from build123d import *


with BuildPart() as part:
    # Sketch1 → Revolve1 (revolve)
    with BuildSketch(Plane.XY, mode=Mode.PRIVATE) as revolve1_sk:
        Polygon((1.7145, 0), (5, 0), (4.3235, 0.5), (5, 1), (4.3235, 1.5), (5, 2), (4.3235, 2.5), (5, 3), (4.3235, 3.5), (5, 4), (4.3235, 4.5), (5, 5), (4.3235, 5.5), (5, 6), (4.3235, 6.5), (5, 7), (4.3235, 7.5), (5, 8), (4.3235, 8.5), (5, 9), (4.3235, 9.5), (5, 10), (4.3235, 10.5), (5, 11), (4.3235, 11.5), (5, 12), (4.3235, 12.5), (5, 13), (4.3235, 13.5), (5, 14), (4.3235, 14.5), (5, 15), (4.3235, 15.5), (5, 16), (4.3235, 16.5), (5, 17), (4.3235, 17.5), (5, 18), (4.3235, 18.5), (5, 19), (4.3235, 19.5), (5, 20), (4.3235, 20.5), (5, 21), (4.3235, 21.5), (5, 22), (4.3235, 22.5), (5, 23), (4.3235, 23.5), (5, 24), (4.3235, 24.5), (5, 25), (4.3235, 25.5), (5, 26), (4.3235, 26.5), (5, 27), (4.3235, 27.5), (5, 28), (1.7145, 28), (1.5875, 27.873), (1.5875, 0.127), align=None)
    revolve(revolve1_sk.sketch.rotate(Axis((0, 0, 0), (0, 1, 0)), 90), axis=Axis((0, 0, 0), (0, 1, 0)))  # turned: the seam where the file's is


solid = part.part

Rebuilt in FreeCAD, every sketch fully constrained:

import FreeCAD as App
import Part
import Sketcher
from FreeCAD import Vector
Q = App.Units.Quantity


def add_polygon(sketch, points):
    """Adds a closed chain of lines whose ends are joined by coincident constraints."""
    first, n = sketch.GeometryCount, len(points)
    for a, b in zip(points, points[1:] + points[:1]):
        sketch.addGeometry(Part.LineSegment(App.Vector(*a, 0), App.Vector(*b, 0)), False)
    for i in range(n):
        sketch.addConstraint(Sketcher.Constraint("Coincident", first + i, 2, first + (i + 1) % n, 1))

doc = App.newDocument("Part")
body = doc.addObject("PartDesign::Body", "Body")

sketch1 = body.newObject("Sketcher::SketchObject", "Sketch")
sketch1.AttachmentSupport = (doc.getObject("XY_Plane"), [""])
sketch1.MapMode = "FlatFace"
add_polygon(sketch1, [(1.71, 0), (5, 0), (4.32, 0.5), (5, 1), (4.32, 1.5), (5, 2), (4.32, 2.5), (5, 3), (4.32, 3.5), (5, 4), (4.32, 4.5), (5, 5), (4.32, 5.5), (5, 6), (4.32, 6.5), (5, 7), (4.32, 7.5), (5, 8), (4.32, 8.5), (5, 9), (4.32, 9.5), (5, 10), (4.32, 10.5), (5, 11), (4.32, 11.5), (5, 12), (4.32, 12.5), (5, 13), (4.32, 13.5), (5, 14), (4.32, 14.5), (5, 15), (4.32, 15.5), (5, 16), (4.32, 16.5), (5, 17), (4.32, 17.5), (5, 18), (4.32, 18.5), (5, 19), (4.32, 19.5), (5, 20), (4.32, 20.5), (5, 21), (4.32, 21.5), (5, 22), (4.32, 22.5), (5, 23), (4.32, 23.5), (5, 24), (4.32, 24.5), (5, 25), (4.32, 25.5), (5, 26), (4.32, 26.5), (5, 27), (4.32, 27.5), (5, 28), (1.71, 28), (1.59, 27.87), (1.59, 0.13)])
sketch1.addConstraint([
    Sketcher.Constraint("Horizontal", 0),
    Sketcher.Constraint("Horizontal", 57),
    Sketcher.Constraint("Vertical", 59),
    Sketcher.Constraint("PointOnObject", 0, 2, -1),
    Sketcher.Constraint("Parallel", 1, 3),
    Sketcher.Constraint("Parallel", 2, 4),
    Sketcher.Constraint("Parallel", 3, 5),
    Sketcher.Constraint("Parallel", 4, 6),
    Sketcher.Constraint("Parallel", 5, 7),
    Sketcher.Constraint("Parallel", 6, 8),
    Sketcher.Constraint("Parallel", 7, 9),
    Sketcher.Constraint("Parallel", 8, 10),
    Sketcher.Constraint("Parallel", 9, 11),
    Sketcher.Constraint("Parallel", 10, 12),
    Sketcher.Constraint("Parallel", 11, 13),
    Sketcher.Constraint("Parallel", 12, 14),
    Sketcher.Constraint("Parallel", 13, 15),
    Sketcher.Constraint("Parallel", 14, 16),
    Sketcher.Constraint("Parallel", 15, 17),
    Sketcher.Constraint("Parallel", 16, 18),
    Sketcher.Constraint("Parallel", 17, 19),
    Sketcher.Constraint("Parallel", 18, 20),
    Sketcher.Constraint("Parallel", 19, 21),
    Sketcher.Constraint("Parallel", 20, 22),
    Sketcher.Constraint("Parallel", 21, 23),
    Sketcher.Constraint("Parallel", 22, 24),
    Sketcher.Constraint("Parallel", 23, 25),
    Sketcher.Constraint("Parallel", 24, 26),
    Sketcher.Constraint("Parallel", 25, 27),
    Sketcher.Constraint("Parallel", 26, 28),
    Sketcher.Constraint("Parallel", 27, 29),
    Sketcher.Constraint("Parallel", 28, 30),
    Sketcher.Constraint("Parallel", 29, 31),
    Sketcher.Constraint("Parallel", 30, 32),
    Sketcher.Constraint("Parallel", 31, 33),
    Sketcher.Constraint("Parallel", 32, 34),
    Sketcher.Constraint("Parallel", 33, 35),
    Sketcher.Constraint("Parallel", 34, 36),
    Sketcher.Constraint("Parallel", 35, 37),
    Sketcher.Constraint("Parallel", 36, 38),
    Sketcher.Constraint("Parallel", 37, 39),
    Sketcher.Constraint("Parallel", 38, 40),
    Sketcher.Constraint("Parallel", 39, 41),
    Sketcher.Constraint("Parallel", 40, 42),
    Sketcher.Constraint("Parallel", 41, 43),
    Sketcher.Constraint("Parallel", 42, 44),
    Sketcher.Constraint("Parallel", 43, 45),
    Sketcher.Constraint("Parallel", 44, 46),
    Sketcher.Constraint("Parallel", 45, 47),
    Sketcher.Constraint("Parallel", 46, 48),
    Sketcher.Constraint("Parallel", 47, 49),
    Sketcher.Constraint("Parallel", 48, 50),
    Sketcher.Constraint("Parallel", 49, 51),
    Sketcher.Constraint("Parallel", 50, 52),
    Sketcher.Constraint("Parallel", 51, 53),
    Sketcher.Constraint("Parallel", 52, 54),
    Sketcher.Constraint("Parallel", 53, 55),
    Sketcher.Constraint("Parallel", 54, 56),
    Sketcher.Constraint("Perpendicular", 58, 60),
    Sketcher.Constraint("Vertical", 0, 2, 2, 2),
    Sketcher.Constraint("Vertical", 1, 2, 3, 2),
    Sketcher.Constraint("Vertical", 2, 2, 4, 2),
    Sketcher.Constraint("Vertical", 3, 2, 5, 2),
    Sketcher.Constraint("Vertical", 4, 2, 6, 2),
    Sketcher.Constraint("Vertical", 5, 2, 7, 2),
    Sketcher.Constraint("Vertical", 6, 2, 8, 2),
    Sketcher.Constraint("Vertical", 7, 2, 9, 2),
    Sketcher.Constraint("Vertical", 8, 2, 10, 2),
    Sketcher.Constraint("Vertical", 9, 2, 11, 2),
    Sketcher.Constraint("Vertical", 10, 2, 12, 2),
    Sketcher.Constraint("Vertical", 11, 2, 13, 2),
    Sketcher.Constraint("Vertical", 12, 2, 14, 2),
    Sketcher.Constraint("Vertical", 13, 2, 15, 2),
    Sketcher.Constraint("Vertical", 14, 2, 16, 2),
    Sketcher.Constraint("Vertical", 15, 2, 17, 2),
    Sketcher.Constraint("Vertical", 16, 2, 18, 2),
    Sketcher.Constraint("Vertical", 17, 2, 19, 2),
    Sketcher.Constraint("Vertical", 18, 2, 20, 2),
    Sketcher.Constraint("Vertical", 19, 2, 21, 2),
    Sketcher.Constraint("Vertical", 20, 2, 22, 2),
    Sketcher.Constraint("Vertical", 21, 2, 23, 2),
    Sketcher.Constraint("Vertical", 22, 2, 24, 2),
    Sketcher.Constraint("Vertical", 23, 2, 25, 2),
    Sketcher.Constraint("Vertical", 24, 2, 26, 2),
    Sketcher.Constraint("Vertical", 25, 2, 27, 2),
    Sketcher.Constraint("Vertical", 26, 2, 28, 2),
    Sketcher.Constraint("Vertical", 27, 2, 29, 2),
    Sketcher.Constraint("Vertical", 28, 2, 30, 2),
    Sketcher.Constraint("Vertical", 29, 2, 31, 2),
    Sketcher.Constraint("Vertical", 30, 2, 32, 2),
    Sketcher.Constraint("Vertical", 31, 2, 33, 2),
    Sketcher.Constraint("Vertical", 32, 2, 34, 2),
    Sketcher.Constraint("Vertical", 33, 2, 35, 2),
    Sketcher.Constraint("Vertical", 34, 2, 36, 2),
    Sketcher.Constraint("Vertical", 35, 2, 37, 2),
    Sketcher.Constraint("Vertical", 36, 2, 38, 2),
    Sketcher.Constraint("Vertical", 37, 2, 39, 2),
    Sketcher.Constraint("Vertical", 38, 2, 40, 2),
    Sketcher.Constraint("Vertical", 39, 2, 41, 2),
    Sketcher.Constraint("Vertical", 40, 2, 42, 2),
    Sketcher.Constraint("Vertical", 41, 2, 43, 2),
    Sketcher.Constraint("Vertical", 42, 2, 44, 2),
    Sketcher.Constraint("Vertical", 43, 2, 45, 2),
    Sketcher.Constraint("Vertical", 44, 2, 46, 2),
    Sketcher.Constraint("Vertical", 45, 2, 47, 2),
    Sketcher.Constraint("Vertical", 46, 2, 48, 2),
    Sketcher.Constraint("Vertical", 47, 2, 49, 2),
    Sketcher.Constraint("Vertical", 48, 2, 50, 2),
    Sketcher.Constraint("Vertical", 49, 2, 51, 2),
    Sketcher.Constraint("Vertical", 50, 2, 52, 2),
    Sketcher.Constraint("Vertical", 51, 2, 53, 2),
    Sketcher.Constraint("Vertical", 52, 2, 54, 2),
    Sketcher.Constraint("Vertical", 53, 2, 55, 2),
    Sketcher.Constraint("Vertical", 54, 2, 56, 2),
    Sketcher.Constraint("Vertical", 57, 2, 60, 2),
    Sketcher.Constraint("Equal", 1, 2),
    Sketcher.Constraint("Equal", 58, 60),
    Sketcher.Constraint("DistanceX", -1, 1, 0, 2, Q("5 mm")),
    Sketcher.Constraint("DistanceY", -1, 1, 2, 2, Q("1 mm")),
    Sketcher.Constraint("DistanceY", 59, 2, 59, 1, Q("27.746 mm")),
    Sketcher.Constraint("DistanceX", 0, 1, 0, 2, Q("3.2855 mm")),
    Sketcher.Constraint("DistanceX", -1, 1, 1, 2, Q("4.3235 mm")),
])
revolution = body.newObject("PartDesign::Revolution", "Revolution")
revolution.Profile = sketch1
revolution.ReferenceAxis = (sketch1, ["V_Axis"])
revolution.Angle = 360

doc.recompute()
